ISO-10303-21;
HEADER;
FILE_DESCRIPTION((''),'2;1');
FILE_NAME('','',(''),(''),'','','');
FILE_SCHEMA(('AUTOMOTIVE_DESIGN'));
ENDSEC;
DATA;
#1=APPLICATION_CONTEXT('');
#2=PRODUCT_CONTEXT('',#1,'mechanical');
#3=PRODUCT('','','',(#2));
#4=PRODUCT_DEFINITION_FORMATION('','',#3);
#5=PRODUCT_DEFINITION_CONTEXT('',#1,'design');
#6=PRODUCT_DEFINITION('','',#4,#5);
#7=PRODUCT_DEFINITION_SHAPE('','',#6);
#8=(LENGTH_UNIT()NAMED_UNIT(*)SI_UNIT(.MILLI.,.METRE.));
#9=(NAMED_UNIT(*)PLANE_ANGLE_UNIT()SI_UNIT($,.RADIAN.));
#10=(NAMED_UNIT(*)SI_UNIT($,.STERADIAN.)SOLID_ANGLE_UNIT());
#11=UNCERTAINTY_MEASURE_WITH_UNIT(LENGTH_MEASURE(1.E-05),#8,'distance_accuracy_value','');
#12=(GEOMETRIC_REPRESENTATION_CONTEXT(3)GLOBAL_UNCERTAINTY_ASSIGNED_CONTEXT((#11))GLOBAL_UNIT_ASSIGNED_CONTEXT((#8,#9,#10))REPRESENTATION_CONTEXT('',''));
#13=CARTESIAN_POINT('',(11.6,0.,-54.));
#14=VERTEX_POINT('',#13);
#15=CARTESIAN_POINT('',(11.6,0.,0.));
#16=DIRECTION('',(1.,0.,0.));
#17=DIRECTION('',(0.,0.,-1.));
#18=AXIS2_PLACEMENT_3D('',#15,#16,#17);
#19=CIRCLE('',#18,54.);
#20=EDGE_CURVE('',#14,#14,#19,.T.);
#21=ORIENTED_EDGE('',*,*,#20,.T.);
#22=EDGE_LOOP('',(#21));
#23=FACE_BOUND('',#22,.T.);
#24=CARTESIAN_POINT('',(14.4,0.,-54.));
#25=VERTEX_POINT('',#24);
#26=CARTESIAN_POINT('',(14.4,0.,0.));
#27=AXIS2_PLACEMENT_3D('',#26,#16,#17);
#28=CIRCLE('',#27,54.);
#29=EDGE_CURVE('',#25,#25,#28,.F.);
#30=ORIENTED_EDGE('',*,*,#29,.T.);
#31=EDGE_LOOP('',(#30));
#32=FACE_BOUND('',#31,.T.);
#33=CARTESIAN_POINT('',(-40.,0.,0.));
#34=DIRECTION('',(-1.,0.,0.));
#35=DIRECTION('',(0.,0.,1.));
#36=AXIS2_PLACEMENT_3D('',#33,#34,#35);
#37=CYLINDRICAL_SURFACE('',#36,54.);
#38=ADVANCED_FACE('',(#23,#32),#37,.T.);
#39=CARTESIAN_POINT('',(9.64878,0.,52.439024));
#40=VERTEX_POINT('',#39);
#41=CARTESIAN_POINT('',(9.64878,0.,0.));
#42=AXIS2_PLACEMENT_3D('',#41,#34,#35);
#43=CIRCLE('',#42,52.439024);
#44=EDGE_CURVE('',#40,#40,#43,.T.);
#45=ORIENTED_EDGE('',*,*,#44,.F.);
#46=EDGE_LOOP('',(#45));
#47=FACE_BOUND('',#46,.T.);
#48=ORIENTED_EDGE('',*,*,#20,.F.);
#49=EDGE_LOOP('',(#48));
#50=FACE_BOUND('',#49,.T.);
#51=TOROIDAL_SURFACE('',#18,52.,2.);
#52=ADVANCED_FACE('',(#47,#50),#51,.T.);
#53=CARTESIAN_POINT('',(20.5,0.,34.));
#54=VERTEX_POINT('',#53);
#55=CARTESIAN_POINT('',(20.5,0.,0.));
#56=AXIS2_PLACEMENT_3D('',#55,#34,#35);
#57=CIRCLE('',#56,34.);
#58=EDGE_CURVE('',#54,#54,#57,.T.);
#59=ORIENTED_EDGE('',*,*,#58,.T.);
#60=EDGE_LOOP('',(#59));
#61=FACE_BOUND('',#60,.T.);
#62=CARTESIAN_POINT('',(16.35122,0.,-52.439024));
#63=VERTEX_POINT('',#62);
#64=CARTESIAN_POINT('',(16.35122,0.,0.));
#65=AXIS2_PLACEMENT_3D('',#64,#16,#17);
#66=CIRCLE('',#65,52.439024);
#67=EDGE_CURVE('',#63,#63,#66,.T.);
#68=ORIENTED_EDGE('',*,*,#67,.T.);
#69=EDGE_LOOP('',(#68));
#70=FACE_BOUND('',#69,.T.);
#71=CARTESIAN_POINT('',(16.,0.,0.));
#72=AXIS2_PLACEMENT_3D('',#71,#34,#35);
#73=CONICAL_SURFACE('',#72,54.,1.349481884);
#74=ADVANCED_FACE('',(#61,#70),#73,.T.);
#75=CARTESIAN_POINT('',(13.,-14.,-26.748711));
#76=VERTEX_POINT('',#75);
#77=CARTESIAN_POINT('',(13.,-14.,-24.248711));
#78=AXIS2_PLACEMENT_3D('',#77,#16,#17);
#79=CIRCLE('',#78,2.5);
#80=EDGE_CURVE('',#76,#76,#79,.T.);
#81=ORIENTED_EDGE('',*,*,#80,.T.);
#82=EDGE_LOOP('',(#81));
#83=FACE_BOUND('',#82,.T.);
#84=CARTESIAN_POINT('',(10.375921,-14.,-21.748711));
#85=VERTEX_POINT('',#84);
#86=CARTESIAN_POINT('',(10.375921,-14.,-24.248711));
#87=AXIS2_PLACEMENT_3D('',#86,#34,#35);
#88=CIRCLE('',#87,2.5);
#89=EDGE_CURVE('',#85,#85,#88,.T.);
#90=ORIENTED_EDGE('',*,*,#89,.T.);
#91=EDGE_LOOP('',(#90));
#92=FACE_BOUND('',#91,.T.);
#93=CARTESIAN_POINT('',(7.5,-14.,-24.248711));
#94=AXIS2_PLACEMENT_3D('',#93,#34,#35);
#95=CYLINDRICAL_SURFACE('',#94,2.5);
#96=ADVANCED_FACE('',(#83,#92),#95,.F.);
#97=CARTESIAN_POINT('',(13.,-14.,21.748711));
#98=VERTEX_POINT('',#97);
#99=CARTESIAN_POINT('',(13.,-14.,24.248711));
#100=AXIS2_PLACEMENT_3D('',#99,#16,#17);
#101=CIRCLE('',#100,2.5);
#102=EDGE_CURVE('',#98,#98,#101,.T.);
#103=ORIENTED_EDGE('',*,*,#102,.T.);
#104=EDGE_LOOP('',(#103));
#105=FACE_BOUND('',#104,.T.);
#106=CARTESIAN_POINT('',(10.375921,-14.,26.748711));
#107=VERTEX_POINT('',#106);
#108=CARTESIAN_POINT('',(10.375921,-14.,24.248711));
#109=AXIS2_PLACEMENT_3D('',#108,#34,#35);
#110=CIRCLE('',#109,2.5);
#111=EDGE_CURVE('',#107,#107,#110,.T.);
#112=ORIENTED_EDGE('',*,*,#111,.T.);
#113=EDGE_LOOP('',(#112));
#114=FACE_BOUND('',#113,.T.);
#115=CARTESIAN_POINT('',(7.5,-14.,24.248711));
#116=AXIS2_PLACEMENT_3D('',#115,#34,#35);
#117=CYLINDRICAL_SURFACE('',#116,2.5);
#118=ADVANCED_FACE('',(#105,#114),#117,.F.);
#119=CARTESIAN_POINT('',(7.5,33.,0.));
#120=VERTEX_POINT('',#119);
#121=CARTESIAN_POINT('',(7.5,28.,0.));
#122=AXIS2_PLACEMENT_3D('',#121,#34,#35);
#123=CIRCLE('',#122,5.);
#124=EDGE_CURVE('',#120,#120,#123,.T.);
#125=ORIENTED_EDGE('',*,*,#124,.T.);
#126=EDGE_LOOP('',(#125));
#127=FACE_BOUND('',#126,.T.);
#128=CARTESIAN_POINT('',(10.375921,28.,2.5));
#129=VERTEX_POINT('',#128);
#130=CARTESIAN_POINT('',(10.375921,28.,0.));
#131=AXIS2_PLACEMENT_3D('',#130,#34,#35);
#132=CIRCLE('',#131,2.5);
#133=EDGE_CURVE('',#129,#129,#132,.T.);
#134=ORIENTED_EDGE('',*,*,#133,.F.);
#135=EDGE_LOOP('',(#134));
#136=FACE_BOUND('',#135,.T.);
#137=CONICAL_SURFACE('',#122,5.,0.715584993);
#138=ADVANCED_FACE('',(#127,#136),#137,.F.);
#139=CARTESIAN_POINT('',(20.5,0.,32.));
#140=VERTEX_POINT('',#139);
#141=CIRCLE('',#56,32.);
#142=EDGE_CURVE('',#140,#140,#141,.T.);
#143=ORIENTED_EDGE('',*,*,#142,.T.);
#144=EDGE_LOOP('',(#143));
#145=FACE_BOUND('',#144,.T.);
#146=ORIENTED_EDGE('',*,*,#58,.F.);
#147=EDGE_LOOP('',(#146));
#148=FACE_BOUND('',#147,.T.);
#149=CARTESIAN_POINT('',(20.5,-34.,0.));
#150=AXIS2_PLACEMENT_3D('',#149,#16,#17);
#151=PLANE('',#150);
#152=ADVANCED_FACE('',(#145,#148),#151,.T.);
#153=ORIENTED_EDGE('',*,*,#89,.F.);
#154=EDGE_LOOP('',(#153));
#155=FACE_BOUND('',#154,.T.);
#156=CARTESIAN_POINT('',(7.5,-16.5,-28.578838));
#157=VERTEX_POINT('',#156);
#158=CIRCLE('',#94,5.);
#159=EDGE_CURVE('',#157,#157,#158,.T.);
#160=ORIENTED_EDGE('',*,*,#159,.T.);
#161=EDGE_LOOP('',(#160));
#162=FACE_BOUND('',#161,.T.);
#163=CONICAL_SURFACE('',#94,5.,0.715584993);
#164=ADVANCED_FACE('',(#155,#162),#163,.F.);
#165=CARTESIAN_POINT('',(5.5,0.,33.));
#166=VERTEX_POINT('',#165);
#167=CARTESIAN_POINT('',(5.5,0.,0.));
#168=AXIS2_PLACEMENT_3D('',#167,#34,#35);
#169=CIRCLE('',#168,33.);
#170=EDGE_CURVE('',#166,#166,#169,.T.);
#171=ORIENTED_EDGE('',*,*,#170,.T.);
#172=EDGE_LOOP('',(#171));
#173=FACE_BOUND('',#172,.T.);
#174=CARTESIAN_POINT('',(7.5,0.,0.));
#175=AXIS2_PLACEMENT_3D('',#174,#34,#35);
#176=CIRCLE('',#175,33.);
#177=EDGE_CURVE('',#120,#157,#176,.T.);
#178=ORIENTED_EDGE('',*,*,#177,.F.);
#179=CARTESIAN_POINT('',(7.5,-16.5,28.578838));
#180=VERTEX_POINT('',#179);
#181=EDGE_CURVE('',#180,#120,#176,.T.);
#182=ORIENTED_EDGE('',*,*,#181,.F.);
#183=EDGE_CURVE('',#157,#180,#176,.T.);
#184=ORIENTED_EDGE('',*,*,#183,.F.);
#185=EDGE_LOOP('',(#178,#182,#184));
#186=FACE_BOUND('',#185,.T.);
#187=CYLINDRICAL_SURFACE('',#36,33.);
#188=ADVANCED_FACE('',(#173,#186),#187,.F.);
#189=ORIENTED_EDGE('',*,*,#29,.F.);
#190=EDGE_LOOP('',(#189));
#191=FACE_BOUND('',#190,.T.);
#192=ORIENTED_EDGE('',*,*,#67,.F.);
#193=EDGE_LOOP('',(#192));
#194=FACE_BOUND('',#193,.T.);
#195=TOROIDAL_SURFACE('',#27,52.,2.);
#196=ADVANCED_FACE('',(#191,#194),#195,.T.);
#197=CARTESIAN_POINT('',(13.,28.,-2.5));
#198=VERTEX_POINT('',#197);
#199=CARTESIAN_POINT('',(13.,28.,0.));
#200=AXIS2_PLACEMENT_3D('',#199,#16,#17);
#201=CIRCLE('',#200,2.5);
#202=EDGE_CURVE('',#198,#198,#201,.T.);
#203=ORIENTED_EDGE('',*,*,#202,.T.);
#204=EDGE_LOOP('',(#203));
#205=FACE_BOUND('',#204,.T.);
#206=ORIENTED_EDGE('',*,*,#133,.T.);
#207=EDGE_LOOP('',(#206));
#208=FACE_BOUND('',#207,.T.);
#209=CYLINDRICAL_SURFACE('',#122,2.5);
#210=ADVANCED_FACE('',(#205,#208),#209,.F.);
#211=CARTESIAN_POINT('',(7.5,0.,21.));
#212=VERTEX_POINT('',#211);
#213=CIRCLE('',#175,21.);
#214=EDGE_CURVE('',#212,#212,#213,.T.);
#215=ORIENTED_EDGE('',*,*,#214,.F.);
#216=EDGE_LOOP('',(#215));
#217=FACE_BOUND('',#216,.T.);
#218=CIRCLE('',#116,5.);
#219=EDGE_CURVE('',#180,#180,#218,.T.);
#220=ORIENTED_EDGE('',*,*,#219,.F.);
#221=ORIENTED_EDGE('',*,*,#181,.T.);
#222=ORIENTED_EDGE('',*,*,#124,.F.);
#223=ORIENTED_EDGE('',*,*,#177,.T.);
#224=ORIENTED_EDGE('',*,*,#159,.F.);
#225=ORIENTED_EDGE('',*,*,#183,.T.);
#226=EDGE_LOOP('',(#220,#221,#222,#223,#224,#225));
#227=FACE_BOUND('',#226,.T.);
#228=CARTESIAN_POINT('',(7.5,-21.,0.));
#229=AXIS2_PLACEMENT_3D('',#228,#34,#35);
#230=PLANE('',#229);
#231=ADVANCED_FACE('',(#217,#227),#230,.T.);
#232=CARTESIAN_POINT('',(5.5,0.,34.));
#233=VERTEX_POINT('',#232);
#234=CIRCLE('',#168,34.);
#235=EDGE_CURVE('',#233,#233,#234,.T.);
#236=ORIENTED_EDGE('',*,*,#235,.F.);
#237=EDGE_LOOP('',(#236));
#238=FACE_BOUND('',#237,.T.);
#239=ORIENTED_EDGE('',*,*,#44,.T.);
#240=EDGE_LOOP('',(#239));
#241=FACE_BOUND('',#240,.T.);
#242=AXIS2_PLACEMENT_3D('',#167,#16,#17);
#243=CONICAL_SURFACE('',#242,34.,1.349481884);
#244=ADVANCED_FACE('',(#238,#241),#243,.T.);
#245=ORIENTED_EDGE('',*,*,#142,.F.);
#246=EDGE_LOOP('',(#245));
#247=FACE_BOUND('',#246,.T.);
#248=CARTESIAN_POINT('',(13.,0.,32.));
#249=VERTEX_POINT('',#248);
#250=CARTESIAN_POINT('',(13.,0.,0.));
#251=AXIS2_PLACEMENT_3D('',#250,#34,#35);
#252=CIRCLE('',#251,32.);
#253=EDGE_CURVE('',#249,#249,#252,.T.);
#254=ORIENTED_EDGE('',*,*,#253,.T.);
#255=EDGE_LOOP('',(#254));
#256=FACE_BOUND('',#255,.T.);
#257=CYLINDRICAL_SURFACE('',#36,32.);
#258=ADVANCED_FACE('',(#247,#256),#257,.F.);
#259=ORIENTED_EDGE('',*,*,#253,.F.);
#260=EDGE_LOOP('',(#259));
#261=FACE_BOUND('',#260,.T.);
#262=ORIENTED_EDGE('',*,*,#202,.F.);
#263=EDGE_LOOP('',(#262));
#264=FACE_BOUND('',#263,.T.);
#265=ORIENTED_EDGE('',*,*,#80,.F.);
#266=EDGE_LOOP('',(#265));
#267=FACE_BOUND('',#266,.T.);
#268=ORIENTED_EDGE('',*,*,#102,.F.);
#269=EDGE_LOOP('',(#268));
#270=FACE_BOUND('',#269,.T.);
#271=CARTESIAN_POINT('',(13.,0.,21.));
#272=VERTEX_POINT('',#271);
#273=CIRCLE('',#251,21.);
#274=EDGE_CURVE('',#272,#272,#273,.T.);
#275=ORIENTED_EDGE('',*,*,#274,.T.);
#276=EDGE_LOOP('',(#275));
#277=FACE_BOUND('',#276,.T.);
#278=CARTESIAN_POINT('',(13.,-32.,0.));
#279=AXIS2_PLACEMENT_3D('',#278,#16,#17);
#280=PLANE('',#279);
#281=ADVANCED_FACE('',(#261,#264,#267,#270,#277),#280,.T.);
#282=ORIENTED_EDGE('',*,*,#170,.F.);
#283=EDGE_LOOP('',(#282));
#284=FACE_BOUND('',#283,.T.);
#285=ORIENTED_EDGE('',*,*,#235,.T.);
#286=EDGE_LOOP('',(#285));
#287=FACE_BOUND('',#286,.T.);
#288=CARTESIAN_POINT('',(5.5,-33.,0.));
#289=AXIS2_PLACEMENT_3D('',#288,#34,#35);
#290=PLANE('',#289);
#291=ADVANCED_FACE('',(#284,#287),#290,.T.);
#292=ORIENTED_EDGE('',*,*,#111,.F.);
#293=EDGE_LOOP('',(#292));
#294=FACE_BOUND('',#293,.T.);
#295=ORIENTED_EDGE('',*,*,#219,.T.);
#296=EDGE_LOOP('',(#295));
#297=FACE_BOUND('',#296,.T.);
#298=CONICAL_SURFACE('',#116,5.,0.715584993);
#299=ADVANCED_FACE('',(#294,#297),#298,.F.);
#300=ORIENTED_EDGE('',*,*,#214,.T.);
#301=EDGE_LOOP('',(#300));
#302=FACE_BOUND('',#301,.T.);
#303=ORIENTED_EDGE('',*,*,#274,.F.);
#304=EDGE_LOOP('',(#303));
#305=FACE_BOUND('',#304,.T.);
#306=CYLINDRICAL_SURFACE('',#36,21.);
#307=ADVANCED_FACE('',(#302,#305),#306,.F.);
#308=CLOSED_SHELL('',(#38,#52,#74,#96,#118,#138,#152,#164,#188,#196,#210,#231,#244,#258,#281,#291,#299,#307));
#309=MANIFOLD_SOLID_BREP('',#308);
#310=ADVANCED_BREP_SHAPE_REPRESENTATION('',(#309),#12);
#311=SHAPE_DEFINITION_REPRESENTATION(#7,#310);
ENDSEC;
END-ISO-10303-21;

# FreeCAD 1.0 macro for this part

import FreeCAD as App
import Part
import Sketcher

V = App.Vector


def edges_at(feature, points):
    """Names of the edges that pass closest to the given points."""
    edges = feature.Shape.Edges
    near = lambda p: min(range(len(edges)), key=lambda i: edges[i].distToShape(Part.Vertex(*p))[0])
    return sorted({f"Edge{near(p) + 1}" for p in points})

doc = App.newDocument("Part")
body = doc.addObject("PartDesign::Body", "Body")

# Sketch on XY plane
sketch1 = doc.addObject("Sketcher::SketchObject", "Sketch")
body.addObject(sketch1)
sketch1.AttachmentSupport = (doc.XY_Plane, [""])
sketch1.MapMode = "FlatFace"
sketch1.addGeometry(Part.LineSegment(V(5.5, -34, 0), V(10, -54, 0)), False)
sketch1.addGeometry(Part.LineSegment(V(10, -54, 0), V(16, -54, 0)), False)
sketch1.addGeometry(Part.LineSegment(V(16, -54, 0), V(20.5, -34, 0)), False)
sketch1.addGeometry(Part.LineSegment(V(20.5, -34, 0), V(20.5, -32, 0)), False)
sketch1.addGeometry(Part.LineSegment(V(20.5, -32, 0), V(13, -32, 0)), False)
sketch1.addGeometry(Part.LineSegment(V(13, -32, 0), V(13, -21, 0)), False)
sketch1.addGeometry(Part.LineSegment(V(13, -21, 0), V(7.5, -21, 0)), False)
sketch1.addGeometry(Part.LineSegment(V(7.5, -21, 0), V(7.5, -33, 0)), False)
sketch1.addGeometry(Part.LineSegment(V(7.5, -33, 0), V(5.5, -33, 0)), False)
sketch1.addGeometry(Part.LineSegment(V(5.5, -33, 0), V(5.5, -34, 0)), False)
sketch1.addConstraint(Sketcher.Constraint("Coincident", 0, 2, 1, 1))
sketch1.addConstraint(Sketcher.Constraint("Coincident", 1, 2, 2, 1))
sketch1.addConstraint(Sketcher.Constraint("Coincident", 2, 2, 3, 1))
sketch1.addConstraint(Sketcher.Constraint("Coincident", 3, 2, 4, 1))
sketch1.addConstraint(Sketcher.Constraint("Coincident", 4, 2, 5, 1))
sketch1.addConstraint(Sketcher.Constraint("Coincident", 5, 2, 6, 1))
sketch1.addConstraint(Sketcher.Constraint("Coincident", 6, 2, 7, 1))
sketch1.addConstraint(Sketcher.Constraint("Coincident", 7, 2, 8, 1))
sketch1.addConstraint(Sketcher.Constraint("Coincident", 8, 2, 9, 1))
sketch1.addConstraint(Sketcher.Constraint("Coincident", 9, 2, 0, 1))
sketch1.addConstraint(Sketcher.Constraint("Horizontal", 1))
sketch1.addConstraint(Sketcher.Constraint("Vertical", 3))
sketch1.addConstraint(Sketcher.Constraint("Horizontal", 4))
sketch1.addConstraint(Sketcher.Constraint("Vertical", 5))
sketch1.addConstraint(Sketcher.Constraint("Horizontal", 6))
sketch1.addConstraint(Sketcher.Constraint("Vertical", 7))
sketch1.addConstraint(Sketcher.Constraint("Horizontal", 8))
sketch1.addConstraint(Sketcher.Constraint("Vertical", 9))
sketch1.addConstraint(Sketcher.Constraint("Horizontal", 2, 2, 9, 2))
sketch1.addConstraint(Sketcher.Constraint("Equal", 8, 3))
sketch1.addConstraint(Sketcher.Constraint("Equal", 0, 2))
sketch1.addConstraint(Sketcher.Constraint("DistanceX", 1, 1, 1, 2, 6.0))
sketch1.addConstraint(Sketcher.Constraint("DistanceX", 8, 2, 8, 1, 2.0))
sketch1.addConstraint(Sketcher.Constraint("DistanceY", 5, 1, 5, 2, 11.0))
sketch1.addConstraint(Sketcher.Constraint("DistanceY", 7, 2, 7, 1, 12.0))
sketch1.addConstraint(Sketcher.Constraint("DistanceX", 4, 2, 4, 1, 7.5))
sketch1.addConstraint(Sketcher.Constraint("DistanceX", 6, 2, 6, 1, 5.5))
sketch1.addConstraint(Sketcher.Constraint("DistanceX", -1, 1, 0, 2, 10.0))
sketch1.addConstraint(Sketcher.Constraint("DistanceY", 0, 2, -1, 1, 54.0))
sketch1.addConstraint(Sketcher.Constraint("DistanceY", 2, 2, -1, 1, 34.0))
revolution = doc.addObject("PartDesign::Revolution", "Revolution")
body.addObject(revolution)
revolution.Profile = sketch1
revolution.ReferenceAxis = (sketch1, ["H_Axis"])
revolution.Angle = 360
doc.recompute()

fillet = doc.addObject("PartDesign::Fillet", "Fillet")
body.addObject(fillet)
fillet.Base = (revolution, edges_at(revolution, [(10, 0, -54), (16, 0, -54)]))
fillet.Radius = 2

# Sketch on YZ plane
sketch2 = doc.addObject("Sketcher::SketchObject", "Sketch001")
body.addObject(sketch2)
sketch2.AttachmentSupport = (doc.YZ_Plane, [""])
sketch2.MapMode = "FlatFace"
sketch2.AttachmentOffset = App.Placement(V(0, 0, 7.5), App.Rotation())
sketch2.addGeometry(Part.Circle(V(28, 0, 0), V(0, 0, 1), 2.5), False)
sketch2.addConstraint(Sketcher.Constraint("PointOnObject", 0, 3, -1))
sketch2.addConstraint(Sketcher.Constraint("Diameter", 0, 5.0))
sketch2.addConstraint(Sketcher.Constraint("DistanceX", -1, 1, 0, 3, 28.0))
doc.recompute()
hole = doc.addObject("PartDesign::Hole", "Hole")
body.addObject(hole)
hole.Profile = sketch2
hole.ThreadType = "None"
hole.Diameter = 5
hole.DepthType = "Dimension"
hole.Depth = 20
hole.DrillPoint = "Flat"
hole.HoleCutType = "Countersink"
hole.HoleCutDiameter = 10
hole.HoleCutCountersinkAngle = 82
hole.Reversed = True
doc.recompute()

polarpattern = doc.addObject("PartDesign::PolarPattern", "PolarPattern")
body.addObject(polarpattern)
polarpattern.Originals = [hole]
polarpattern.Axis = (doc.X_Axis, [""])
polarpattern.Angle = 360
polarpattern.Occurrences = 3
body.Tip = polarpattern

doc.recompute()
